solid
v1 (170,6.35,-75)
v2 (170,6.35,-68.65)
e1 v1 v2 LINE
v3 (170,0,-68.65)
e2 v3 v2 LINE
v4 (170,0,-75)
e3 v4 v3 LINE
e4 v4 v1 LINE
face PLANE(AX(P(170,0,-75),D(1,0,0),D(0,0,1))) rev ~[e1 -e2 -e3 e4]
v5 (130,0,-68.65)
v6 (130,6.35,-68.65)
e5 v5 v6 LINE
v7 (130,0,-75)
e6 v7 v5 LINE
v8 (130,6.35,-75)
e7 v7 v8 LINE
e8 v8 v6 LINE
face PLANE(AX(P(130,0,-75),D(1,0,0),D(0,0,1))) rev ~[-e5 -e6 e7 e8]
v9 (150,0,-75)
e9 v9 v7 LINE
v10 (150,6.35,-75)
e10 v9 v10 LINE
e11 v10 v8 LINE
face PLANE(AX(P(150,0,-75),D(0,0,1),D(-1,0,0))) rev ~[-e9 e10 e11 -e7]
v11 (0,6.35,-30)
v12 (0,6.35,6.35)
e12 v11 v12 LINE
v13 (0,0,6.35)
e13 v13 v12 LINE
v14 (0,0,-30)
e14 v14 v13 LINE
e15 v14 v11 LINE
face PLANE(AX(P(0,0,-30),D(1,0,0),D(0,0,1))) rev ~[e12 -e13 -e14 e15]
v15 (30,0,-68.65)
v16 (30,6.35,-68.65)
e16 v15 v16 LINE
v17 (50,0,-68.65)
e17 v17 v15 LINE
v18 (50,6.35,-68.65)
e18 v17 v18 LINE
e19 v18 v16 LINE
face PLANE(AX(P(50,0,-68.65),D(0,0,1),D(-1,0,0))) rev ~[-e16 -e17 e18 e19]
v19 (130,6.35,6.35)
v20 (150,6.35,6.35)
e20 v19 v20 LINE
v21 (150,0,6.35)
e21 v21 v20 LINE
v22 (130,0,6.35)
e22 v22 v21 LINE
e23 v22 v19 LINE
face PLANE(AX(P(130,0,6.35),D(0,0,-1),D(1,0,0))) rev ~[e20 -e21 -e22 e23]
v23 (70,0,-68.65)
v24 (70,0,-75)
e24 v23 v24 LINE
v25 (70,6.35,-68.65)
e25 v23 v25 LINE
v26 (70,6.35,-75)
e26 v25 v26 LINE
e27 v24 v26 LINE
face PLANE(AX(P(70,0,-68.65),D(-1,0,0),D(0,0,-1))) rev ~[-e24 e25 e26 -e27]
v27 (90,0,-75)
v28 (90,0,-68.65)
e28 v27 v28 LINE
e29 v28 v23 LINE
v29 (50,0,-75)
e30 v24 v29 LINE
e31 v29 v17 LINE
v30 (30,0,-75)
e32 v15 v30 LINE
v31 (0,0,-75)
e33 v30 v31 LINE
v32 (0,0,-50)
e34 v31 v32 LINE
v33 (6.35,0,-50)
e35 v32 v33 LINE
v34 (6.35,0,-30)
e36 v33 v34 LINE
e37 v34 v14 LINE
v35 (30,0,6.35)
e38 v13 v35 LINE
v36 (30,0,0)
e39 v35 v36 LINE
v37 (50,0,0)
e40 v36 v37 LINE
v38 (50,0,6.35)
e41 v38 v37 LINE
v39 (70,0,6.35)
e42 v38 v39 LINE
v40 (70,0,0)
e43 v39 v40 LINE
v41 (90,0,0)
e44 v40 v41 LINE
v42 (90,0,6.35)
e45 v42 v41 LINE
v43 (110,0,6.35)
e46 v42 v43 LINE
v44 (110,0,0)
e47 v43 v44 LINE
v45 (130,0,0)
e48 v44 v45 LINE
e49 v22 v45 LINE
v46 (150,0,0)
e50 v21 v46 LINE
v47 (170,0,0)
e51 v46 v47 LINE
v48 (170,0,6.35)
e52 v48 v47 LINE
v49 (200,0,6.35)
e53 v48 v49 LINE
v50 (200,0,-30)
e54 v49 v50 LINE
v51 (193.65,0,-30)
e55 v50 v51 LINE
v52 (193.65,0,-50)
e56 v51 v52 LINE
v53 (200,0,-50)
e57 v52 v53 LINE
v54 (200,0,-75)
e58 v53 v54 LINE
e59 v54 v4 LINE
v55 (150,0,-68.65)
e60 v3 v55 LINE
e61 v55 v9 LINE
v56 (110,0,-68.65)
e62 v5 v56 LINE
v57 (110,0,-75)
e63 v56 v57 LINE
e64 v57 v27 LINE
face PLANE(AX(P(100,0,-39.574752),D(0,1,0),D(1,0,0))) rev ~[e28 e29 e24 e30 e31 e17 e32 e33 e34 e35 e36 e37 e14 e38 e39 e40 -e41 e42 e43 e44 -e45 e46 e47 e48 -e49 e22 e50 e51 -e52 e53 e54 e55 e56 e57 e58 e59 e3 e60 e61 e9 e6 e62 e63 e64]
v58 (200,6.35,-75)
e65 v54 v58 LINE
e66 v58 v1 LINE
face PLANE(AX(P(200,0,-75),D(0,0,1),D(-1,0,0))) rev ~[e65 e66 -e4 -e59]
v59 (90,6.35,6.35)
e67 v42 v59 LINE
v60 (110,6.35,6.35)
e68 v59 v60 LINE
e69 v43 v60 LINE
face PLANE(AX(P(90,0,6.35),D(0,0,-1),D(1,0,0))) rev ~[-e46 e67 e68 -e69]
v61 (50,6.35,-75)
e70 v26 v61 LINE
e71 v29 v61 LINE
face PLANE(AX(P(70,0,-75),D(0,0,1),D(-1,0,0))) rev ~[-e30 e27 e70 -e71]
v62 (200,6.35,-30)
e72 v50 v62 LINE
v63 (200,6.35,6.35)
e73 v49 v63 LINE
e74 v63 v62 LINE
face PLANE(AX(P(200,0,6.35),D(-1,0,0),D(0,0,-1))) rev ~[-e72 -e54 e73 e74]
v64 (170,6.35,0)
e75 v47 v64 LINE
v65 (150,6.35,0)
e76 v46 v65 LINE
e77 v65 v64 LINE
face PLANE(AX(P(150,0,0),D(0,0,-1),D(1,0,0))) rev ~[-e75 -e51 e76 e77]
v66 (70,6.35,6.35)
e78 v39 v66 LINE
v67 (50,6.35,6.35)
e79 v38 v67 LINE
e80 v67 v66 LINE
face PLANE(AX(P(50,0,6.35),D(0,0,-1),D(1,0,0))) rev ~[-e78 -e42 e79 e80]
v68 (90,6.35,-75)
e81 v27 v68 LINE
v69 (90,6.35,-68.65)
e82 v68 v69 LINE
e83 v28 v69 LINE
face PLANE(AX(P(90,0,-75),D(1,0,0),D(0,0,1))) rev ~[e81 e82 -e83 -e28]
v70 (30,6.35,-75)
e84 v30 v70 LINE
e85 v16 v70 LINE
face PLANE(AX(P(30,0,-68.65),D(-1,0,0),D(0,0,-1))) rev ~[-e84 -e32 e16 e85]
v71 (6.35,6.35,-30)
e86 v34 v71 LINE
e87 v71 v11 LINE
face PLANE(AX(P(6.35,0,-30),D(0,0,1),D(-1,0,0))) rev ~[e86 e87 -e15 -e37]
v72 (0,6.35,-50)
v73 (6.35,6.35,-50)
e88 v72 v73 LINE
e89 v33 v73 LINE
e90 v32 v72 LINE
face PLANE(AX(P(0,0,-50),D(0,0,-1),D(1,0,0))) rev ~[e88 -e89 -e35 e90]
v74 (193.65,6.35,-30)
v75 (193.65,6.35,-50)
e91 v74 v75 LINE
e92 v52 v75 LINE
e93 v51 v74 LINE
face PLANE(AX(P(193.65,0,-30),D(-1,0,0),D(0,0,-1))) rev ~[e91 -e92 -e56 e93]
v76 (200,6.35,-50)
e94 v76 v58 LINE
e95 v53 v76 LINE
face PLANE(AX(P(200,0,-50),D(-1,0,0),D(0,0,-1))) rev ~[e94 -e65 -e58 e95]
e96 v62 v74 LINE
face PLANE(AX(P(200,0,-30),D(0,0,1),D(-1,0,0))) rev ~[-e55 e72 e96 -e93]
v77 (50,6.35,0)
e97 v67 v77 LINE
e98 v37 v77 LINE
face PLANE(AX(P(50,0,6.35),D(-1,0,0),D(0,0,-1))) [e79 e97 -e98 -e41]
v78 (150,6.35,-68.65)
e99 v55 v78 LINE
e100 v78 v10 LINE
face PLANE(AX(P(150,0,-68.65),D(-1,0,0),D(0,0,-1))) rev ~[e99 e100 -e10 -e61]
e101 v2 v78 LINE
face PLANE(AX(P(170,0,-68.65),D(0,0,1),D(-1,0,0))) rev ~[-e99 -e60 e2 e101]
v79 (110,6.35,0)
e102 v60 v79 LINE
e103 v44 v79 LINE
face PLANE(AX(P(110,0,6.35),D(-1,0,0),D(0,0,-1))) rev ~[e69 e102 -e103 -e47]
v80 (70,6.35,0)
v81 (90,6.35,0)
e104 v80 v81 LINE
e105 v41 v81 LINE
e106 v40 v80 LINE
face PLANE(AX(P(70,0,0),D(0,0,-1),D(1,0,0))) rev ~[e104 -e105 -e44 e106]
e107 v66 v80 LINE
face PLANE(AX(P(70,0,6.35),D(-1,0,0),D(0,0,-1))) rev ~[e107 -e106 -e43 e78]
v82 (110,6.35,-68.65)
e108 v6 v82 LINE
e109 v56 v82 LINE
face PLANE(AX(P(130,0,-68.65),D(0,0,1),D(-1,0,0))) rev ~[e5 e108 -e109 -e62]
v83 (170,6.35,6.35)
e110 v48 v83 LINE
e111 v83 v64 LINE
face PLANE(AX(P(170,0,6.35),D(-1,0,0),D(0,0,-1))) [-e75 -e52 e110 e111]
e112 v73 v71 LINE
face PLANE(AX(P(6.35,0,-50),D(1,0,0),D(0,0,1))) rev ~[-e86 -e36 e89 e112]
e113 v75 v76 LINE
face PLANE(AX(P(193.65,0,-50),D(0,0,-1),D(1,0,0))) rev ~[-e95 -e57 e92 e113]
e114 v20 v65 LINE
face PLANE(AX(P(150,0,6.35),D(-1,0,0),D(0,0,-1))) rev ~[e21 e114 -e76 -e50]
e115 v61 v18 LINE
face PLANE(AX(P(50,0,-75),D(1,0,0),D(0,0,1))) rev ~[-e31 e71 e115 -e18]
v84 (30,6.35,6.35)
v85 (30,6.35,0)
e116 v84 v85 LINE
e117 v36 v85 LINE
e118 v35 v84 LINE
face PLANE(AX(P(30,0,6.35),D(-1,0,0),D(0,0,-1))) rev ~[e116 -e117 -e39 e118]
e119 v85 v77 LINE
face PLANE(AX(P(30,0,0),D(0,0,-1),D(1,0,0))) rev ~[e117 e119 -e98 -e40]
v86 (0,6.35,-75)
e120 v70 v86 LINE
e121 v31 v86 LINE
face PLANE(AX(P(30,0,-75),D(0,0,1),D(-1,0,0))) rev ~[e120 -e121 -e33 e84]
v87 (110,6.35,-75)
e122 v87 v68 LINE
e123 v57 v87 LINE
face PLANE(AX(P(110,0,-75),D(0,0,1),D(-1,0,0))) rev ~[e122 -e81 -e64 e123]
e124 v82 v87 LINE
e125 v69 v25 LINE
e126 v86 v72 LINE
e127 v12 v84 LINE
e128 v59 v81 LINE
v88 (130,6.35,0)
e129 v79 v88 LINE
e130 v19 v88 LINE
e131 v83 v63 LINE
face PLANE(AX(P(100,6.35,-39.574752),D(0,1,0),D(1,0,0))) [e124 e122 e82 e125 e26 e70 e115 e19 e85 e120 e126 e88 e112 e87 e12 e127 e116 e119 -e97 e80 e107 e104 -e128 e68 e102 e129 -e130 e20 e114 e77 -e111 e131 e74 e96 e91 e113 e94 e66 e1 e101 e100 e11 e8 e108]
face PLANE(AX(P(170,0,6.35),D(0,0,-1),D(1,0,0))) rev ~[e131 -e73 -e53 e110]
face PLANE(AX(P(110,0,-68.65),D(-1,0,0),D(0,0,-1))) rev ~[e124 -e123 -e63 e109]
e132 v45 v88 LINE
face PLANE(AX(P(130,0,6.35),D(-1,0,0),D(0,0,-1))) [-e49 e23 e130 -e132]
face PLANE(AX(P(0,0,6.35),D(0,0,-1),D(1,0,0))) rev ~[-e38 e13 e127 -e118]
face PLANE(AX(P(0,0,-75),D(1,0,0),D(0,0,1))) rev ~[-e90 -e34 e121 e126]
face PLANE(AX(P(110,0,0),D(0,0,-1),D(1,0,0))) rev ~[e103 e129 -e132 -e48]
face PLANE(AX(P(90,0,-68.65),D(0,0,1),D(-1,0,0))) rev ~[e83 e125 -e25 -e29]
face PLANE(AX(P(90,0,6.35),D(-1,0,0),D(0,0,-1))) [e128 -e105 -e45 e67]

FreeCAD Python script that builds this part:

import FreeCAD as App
import Part
import Sketcher

V = App.Vector
Q = App.Units.Quantity


def add_polygon(sketch, points):
    """Adds a closed chain of lines whose ends are joined by coincident constraints."""
    first, n = sketch.GeometryCount, len(points)
    for a, b in zip(points, points[1:] + points[:1]):
        sketch.addGeometry(Part.LineSegment(App.Vector(*a, 0), App.Vector(*b, 0)), False)
    for i in range(n):
        sketch.addConstraint(Sketcher.Constraint("Coincident", first + i, 2, first + (i + 1) % n, 1))

doc = App.newDocument("Part")
body = doc.addObject("PartDesign::Body", "Body")

sketch1 = body.newObject("Sketcher::SketchObject", "Sketch")
sketch1.AttachmentSupport = (doc.getObject("XZ_Plane"), [""])
sketch1.MapMode = "FlatFace"
add_polygon(sketch1, [(0, -30), (0, 6.35), (30, 6.35), (30, 0), (50, 0), (50, 6.35), (70, 6.35), (70, 0), (90, 0), (90, 6.35), (110, 6.35), (110, 0), (130, 0), (130, 6.35), (150, 6.35), (150, 0), (170, 0), (170, 6.35), (200, 6.35), (200, -30), (193.65, -30), (193.65, -50), (200, -50), (200, -75), (170, -75), (170, -68.65), (150, -68.65), (150, -75), (130, -75), (130, -68.65), (110, -68.65), (110, -75), (90, -75), (90, -68.65), (70, -68.65), (70, -75), (50, -75), (50, -68.65), (30, -68.65), (30, -75), (0, -75), (0, -50), (6.35, -50), (6.35, -30)])
sketch1.addConstraint(Sketcher.Constraint("Vertical", 0))
sketch1.addConstraint(Sketcher.Constraint("Horizontal", 1))
sketch1.addConstraint(Sketcher.Constraint("Vertical", 2))
sketch1.addConstraint(Sketcher.Constraint("Horizontal", 3))
sketch1.addConstraint(Sketcher.Constraint("Vertical", 4))
sketch1.addConstraint(Sketcher.Constraint("Horizontal", 5))
sketch1.addConstraint(Sketcher.Constraint("Vertical", 6))
sketch1.addConstraint(Sketcher.Constraint("Horizontal", 7))
sketch1.addConstraint(Sketcher.Constraint("Vertical", 8))
sketch1.addConstraint(Sketcher.Constraint("Horizontal", 9))
sketch1.addConstraint(Sketcher.Constraint("Vertical", 10))
sketch1.addConstraint(Sketcher.Constraint("Horizontal", 11))
sketch1.addConstraint(Sketcher.Constraint("Vertical", 12))
sketch1.addConstraint(Sketcher.Constraint("Horizontal", 13))
sketch1.addConstraint(Sketcher.Constraint("Vertical", 14))
sketch1.addConstraint(Sketcher.Constraint("Horizontal", 15))
sketch1.addConstraint(Sketcher.Constraint("Vertical", 16))
sketch1.addConstraint(Sketcher.Constraint("Horizontal", 17))
sketch1.addConstraint(Sketcher.Constraint("Vertical", 18))
sketch1.addConstraint(Sketcher.Constraint("Horizontal", 19))
sketch1.addConstraint(Sketcher.Constraint("Vertical", 20))
sketch1.addConstraint(Sketcher.Constraint("Horizontal", 21))
sketch1.addConstraint(Sketcher.Constraint("Vertical", 22))
sketch1.addConstraint(Sketcher.Constraint("Horizontal", 23))
sketch1.addConstraint(Sketcher.Constraint("Vertical", 24))
sketch1.addConstraint(Sketcher.Constraint("Horizontal", 25))
sketch1.addConstraint(Sketcher.Constraint("Vertical", 26))
sketch1.addConstraint(Sketcher.Constraint("Horizontal", 27))
sketch1.addConstraint(Sketcher.Constraint("Vertical", 28))
sketch1.addConstraint(Sketcher.Constraint("Horizontal", 29))
sketch1.addConstraint(Sketcher.Constraint("Vertical", 30))
sketch1.addConstraint(Sketcher.Constraint("Horizontal", 31))
sketch1.addConstraint(Sketcher.Constraint("Vertical", 32))
sketch1.addConstraint(Sketcher.Constraint("Horizontal", 33))
sketch1.addConstraint(Sketcher.Constraint("Vertical", 34))
sketch1.addConstraint(Sketcher.Constraint("Horizontal", 35))
sketch1.addConstraint(Sketcher.Constraint("Vertical", 36))
sketch1.addConstraint(Sketcher.Constraint("Horizontal", 37))
sketch1.addConstraint(Sketcher.Constraint("Vertical", 38))
sketch1.addConstraint(Sketcher.Constraint("Horizontal", 39))
sketch1.addConstraint(Sketcher.Constraint("Vertical", 40))
sketch1.addConstraint(Sketcher.Constraint("Horizontal", 41))
sketch1.addConstraint(Sketcher.Constraint("Vertical", 42))
sketch1.addConstraint(Sketcher.Constraint("Horizontal", 43))
sketch1.addConstraint(Sketcher.Constraint("PointOnObject", 0, 2, -2))
sketch1.addConstraint(Sketcher.Constraint("PointOnObject", 2, 2, -1))
sketch1.addConstraint(Sketcher.Constraint("PointOnObject", 6, 2, -1))
sketch1.addConstraint(Sketcher.Constraint("PointOnObject", 10, 2, -1))
sketch1.addConstraint(Sketcher.Constraint("PointOnObject", 14, 2, -1))
sketch1.addConstraint(Sketcher.Constraint("PointOnObject", 39, 2, -2))
sketch1.addConstraint(Sketcher.Constraint("Horizontal", 1, 2, 4, 2))
sketch1.addConstraint(Sketcher.Constraint("Horizontal", 5, 2, 8, 2))
sketch1.addConstraint(Sketcher.Constraint("Horizontal", 9, 2, 12, 2))
sketch1.addConstraint(Sketcher.Constraint("Horizontal", 13, 2, 16, 2))
sketch1.addConstraint(Sketcher.Constraint("Horizontal", 23, 2, 26, 2))
sketch1.addConstraint(Sketcher.Constraint("Horizontal", 25, 2, 28, 2))
sketch1.addConstraint(Sketcher.Constraint("Horizontal", 27, 2, 30, 2))
sketch1.addConstraint(Sketcher.Constraint("Horizontal", 29, 2, 32, 2))
sketch1.addConstraint(Sketcher.Constraint("Horizontal", 31, 2, 34, 2))
sketch1.addConstraint(Sketcher.Constraint("Horizontal", 33, 2, 36, 2))
sketch1.addConstraint(Sketcher.Constraint("Horizontal", 35, 2, 38, 2))
sketch1.addConstraint(Sketcher.Constraint("Horizontal", 21, 2, 40, 2))
sketch1.addConstraint(Sketcher.Constraint("Horizontal", 19, 2, 42, 2))
sketch1.addConstraint(Sketcher.Constraint("Vertical", 18, 2, 21, 2))
sketch1.addConstraint(Sketcher.Constraint("Vertical", 16, 2, 23, 2))
sketch1.addConstraint(Sketcher.Constraint("Vertical", 14, 2, 25, 2))
sketch1.addConstraint(Sketcher.Constraint("Vertical", 12, 2, 27, 2))
sketch1.addConstraint(Sketcher.Constraint("Vertical", 10, 2, 29, 2))
sketch1.addConstraint(Sketcher.Constraint("Vertical", 8, 2, 31, 2))
sketch1.addConstraint(Sketcher.Constraint("Vertical", 6, 2, 33, 2))
sketch1.addConstraint(Sketcher.Constraint("Vertical", 4, 2, 35, 2))
sketch1.addConstraint(Sketcher.Constraint("Vertical", 2, 2, 37, 2))
sketch1.addConstraint(Sketcher.Constraint("Equal", 3, 5))
sketch1.addConstraint(Sketcher.Constraint("Equal", 5, 7))
sketch1.addConstraint(Sketcher.Constraint("Equal", 7, 9))
sketch1.addConstraint(Sketcher.Constraint("Equal", 9, 11))
sketch1.addConstraint(Sketcher.Constraint("Equal", 11, 13))
sketch1.addConstraint(Sketcher.Constraint("Equal", 13, 15))
sketch1.addConstraint(Sketcher.Constraint("Equal", 1, 17))
sketch1.addConstraint(Sketcher.Constraint("Equal", 21, 41))
sketch1.addConstraint(Sketcher.Constraint("Equal", 43, 2))
sketch1.addConstraint(Sketcher.Constraint("Equal", 37, 20))
sketch1.addConstraint(Sketcher.Constraint("Equal", 16, 24))
sketch1.addConstraint(Sketcher.Constraint("DistanceX", 1, 1, 1, 2, Q("30 mm")))
sketch1.addConstraint(Sketcher.Constraint("DistanceX", 3, 1, 3, 2, Q("20 mm")))
sketch1.addConstraint(Sketcher.Constraint("DistanceY", 22, 2, 22, 1, Q("25 mm")))
sketch1.addConstraint(Sketcher.Constraint("DistanceY", 18, 2, -1, 1, Q("30 mm")))
sketch1.addConstraint(Sketcher.Constraint("DistanceX", 19, 2, 19, 1, Q("6.35 mm")))
pad1 = body.newObject("PartDesign::Pad", "Pad")
pad1.Profile = sketch1
pad1.Length = 6.35
pad1.Reversed = True

doc.recompute()
